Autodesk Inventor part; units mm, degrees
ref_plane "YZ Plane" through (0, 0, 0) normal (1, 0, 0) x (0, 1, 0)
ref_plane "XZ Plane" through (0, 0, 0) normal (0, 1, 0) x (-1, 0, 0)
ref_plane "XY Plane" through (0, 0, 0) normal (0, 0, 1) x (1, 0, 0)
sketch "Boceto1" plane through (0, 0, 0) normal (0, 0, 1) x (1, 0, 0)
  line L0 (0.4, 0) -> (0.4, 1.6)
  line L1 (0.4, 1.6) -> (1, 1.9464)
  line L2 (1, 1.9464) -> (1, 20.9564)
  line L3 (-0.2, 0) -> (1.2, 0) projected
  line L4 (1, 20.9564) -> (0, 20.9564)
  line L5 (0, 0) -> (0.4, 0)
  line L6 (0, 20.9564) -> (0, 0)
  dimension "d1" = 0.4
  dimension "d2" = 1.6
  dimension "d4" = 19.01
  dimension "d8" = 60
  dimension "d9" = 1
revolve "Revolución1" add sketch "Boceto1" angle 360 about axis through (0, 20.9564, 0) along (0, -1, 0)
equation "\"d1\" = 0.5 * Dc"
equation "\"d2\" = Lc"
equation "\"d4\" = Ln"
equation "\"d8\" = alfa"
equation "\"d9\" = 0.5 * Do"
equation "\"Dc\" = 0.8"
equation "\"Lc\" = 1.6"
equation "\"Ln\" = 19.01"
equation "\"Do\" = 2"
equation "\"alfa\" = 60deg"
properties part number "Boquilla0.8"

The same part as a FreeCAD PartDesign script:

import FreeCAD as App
import Part
import Sketcher

V = App.Vector
Q = App.Units.Quantity

doc = App.newDocument("Part")
body = doc.addObject("PartDesign::Body", "Body")

sketch1 = doc.addObject("Sketcher::SketchObject", "Sketch")
body.addObject(sketch1)
sketch1.AttachmentSupport = (doc.XY_Plane, [""])
sketch1.MapMode = "FlatFace"
sketch1.addGeometry(Part.LineSegment(V(0, 0, 0), V(0.4, 0, 0)), False)
sketch1.addGeometry(Part.LineSegment(V(0.4, 0, 0), V(0.4, 1.6, 0)), False)
sketch1.addGeometry(Part.LineSegment(V(0.4, 1.6, 0), V(1, 1.95, 0)), False)
sketch1.addGeometry(Part.LineSegment(V(1, 1.95, 0), V(1, 20.96, 0)), False)
sketch1.addGeometry(Part.LineSegment(V(1, 20.96, 0), V(0, 20.96, 0)), False)
sketch1.addGeometry(Part.LineSegment(V(0, 20.96, 0), V(0, 0, 0)), False)
sketch1.addConstraint(Sketcher.Constraint("Coincident", 0, 2, 1, 1))
sketch1.addConstraint(Sketcher.Constraint("Coincident", 1, 2, 2, 1))
sketch1.addConstraint(Sketcher.Constraint("Coincident", 2, 2, 3, 1))
sketch1.addConstraint(Sketcher.Constraint("Coincident", 3, 2, 4, 1))
sketch1.addConstraint(Sketcher.Constraint("Coincident", 4, 2, 5, 1))
sketch1.addConstraint(Sketcher.Constraint("Coincident", 5, 2, 0, 1))
sketch1.addConstraint(Sketcher.Constraint("Horizontal", 0))
sketch1.addConstraint(Sketcher.Constraint("Vertical", 1))
sketch1.addConstraint(Sketcher.Constraint("Vertical", 3))
sketch1.addConstraint(Sketcher.Constraint("Horizontal", 4))
sketch1.addConstraint(Sketcher.Constraint("Vertical", 5))
sketch1.addConstraint(Sketcher.Constraint("Coincident", 5, 2, -1, 1))
sketch1.addConstraint(Sketcher.Constraint("DistanceX", 4, 2, 4, 1, 1.0))
sketch1.addConstraint(Sketcher.Constraint("DistanceX", 0, 1, 0, 2, 0.4))
sketch1.addConstraint(Sketcher.Constraint("DistanceY", 1, 1, 1, 2, 1.6))
sketch1.addConstraint(Sketcher.Constraint("DistanceY", 3, 1, 3, 2, 19.01))
sketch1.addConstraint(Sketcher.Constraint("Angle", 2, Q("29.9993 deg")))
revolution = doc.addObject("PartDesign::Revolution", "Revolution")
body.addObject(revolution)
revolution.Profile = sketch1
revolution.ReferenceAxis = (sketch1, ["V_Axis"])
revolution.Angle = 360

doc.recompute()
